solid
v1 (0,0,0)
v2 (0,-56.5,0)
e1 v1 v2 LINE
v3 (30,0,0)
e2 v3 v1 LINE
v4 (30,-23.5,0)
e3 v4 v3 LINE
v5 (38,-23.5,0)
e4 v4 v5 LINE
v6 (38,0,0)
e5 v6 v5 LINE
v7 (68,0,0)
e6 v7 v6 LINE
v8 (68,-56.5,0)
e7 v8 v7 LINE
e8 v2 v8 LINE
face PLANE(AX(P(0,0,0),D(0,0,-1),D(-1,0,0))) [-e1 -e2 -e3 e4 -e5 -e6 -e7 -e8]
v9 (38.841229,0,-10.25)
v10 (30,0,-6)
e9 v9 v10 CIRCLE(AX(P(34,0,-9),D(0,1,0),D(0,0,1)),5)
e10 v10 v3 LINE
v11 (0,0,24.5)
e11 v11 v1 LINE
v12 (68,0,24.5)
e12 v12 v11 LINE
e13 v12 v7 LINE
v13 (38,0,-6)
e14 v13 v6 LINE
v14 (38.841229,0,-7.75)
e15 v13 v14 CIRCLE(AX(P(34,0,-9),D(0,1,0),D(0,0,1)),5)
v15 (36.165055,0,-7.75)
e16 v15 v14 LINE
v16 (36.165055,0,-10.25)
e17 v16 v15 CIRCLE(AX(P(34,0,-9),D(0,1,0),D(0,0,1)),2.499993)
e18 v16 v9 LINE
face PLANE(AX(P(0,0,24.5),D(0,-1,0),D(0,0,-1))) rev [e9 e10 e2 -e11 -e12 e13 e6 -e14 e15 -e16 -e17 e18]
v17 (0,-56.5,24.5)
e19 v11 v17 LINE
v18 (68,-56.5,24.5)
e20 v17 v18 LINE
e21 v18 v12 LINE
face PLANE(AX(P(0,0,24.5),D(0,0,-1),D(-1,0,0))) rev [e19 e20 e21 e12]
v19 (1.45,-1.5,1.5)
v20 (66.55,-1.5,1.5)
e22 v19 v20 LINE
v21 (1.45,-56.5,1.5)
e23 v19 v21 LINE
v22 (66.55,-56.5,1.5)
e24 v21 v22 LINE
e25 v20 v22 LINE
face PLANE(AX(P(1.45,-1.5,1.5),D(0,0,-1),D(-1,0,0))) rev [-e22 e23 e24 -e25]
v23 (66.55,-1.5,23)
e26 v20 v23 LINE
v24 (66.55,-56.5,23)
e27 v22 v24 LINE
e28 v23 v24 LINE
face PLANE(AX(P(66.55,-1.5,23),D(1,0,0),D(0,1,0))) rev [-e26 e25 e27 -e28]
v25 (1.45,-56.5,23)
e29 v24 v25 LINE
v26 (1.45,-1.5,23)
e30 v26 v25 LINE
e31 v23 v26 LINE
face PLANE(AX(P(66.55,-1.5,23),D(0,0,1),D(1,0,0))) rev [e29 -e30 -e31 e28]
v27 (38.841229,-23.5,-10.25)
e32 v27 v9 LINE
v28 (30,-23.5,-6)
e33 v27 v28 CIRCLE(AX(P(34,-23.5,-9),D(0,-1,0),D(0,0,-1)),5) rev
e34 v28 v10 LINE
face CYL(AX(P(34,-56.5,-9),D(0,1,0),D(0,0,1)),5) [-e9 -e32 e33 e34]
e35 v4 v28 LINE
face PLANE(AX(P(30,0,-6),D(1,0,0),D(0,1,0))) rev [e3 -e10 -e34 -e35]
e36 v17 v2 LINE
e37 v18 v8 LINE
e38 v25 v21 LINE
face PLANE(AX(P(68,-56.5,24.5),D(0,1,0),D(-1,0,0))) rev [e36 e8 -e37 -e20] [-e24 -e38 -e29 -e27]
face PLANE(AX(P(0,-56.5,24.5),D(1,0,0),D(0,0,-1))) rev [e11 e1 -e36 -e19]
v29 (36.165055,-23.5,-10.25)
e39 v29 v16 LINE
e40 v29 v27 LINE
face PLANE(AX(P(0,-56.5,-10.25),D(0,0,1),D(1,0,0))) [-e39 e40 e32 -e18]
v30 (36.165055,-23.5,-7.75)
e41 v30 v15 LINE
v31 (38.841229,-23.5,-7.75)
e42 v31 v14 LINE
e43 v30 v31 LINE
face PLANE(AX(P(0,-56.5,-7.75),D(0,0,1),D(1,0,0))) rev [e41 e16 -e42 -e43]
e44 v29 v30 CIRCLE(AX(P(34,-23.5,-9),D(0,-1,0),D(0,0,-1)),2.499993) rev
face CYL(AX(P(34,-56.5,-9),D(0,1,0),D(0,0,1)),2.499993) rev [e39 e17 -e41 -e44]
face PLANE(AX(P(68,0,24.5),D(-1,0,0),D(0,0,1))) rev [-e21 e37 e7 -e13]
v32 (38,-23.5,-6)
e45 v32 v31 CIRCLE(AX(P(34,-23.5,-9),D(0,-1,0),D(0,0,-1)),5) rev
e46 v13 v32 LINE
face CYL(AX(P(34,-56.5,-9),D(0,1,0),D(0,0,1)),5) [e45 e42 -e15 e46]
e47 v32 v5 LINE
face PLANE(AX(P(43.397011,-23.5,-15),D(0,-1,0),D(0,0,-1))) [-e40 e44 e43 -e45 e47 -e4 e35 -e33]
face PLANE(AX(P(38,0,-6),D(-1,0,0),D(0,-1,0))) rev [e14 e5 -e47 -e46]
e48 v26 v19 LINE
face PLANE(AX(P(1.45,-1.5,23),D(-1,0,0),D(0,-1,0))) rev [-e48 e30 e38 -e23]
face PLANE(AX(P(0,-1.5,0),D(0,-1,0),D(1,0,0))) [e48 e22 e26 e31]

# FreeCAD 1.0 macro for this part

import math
import FreeCAD as App
import Part
import Sketcher

doc = App.newDocument("Part")
body = doc.addObject("PartDesign::Body", "Body")

# Sketch on XY plane
sketch1 = doc.addObject("Sketcher::SketchObject", "Sketch")
body.addObject(sketch1)
sketch1.AttachmentSupport = (doc.XY_Plane, [""])
sketch1.MapMode = "FlatFace"
sketch1.addGeometry(Part.LineSegment(App.Vector(0, 0, 0), App.Vector(0, -56.5, 0)), False)
sketch1.addGeometry(Part.LineSegment(App.Vector(0, -56.5, 0), App.Vector(68, -56.5, 0)), False)
sketch1.addGeometry(Part.LineSegment(App.Vector(68, -56.5, 0), App.Vector(68, 0, 0)), False)
sketch1.addGeometry(Part.LineSegment(App.Vector(68, 0, 0), App.Vector(0, 0, 0)), False)
sketch1.addConstraint(Sketcher.Constraint("Coincident", 0, 2, 1, 1))
sketch1.addConstraint(Sketcher.Constraint("Coincident", 1, 2, 2, 1))
sketch1.addConstraint(Sketcher.Constraint("Coincident", 2, 2, 3, 1))
sketch1.addConstraint(Sketcher.Constraint("Coincident", 3, 2, 0, 1))
sketch1.addConstraint(Sketcher.Constraint("Vertical", 0))
sketch1.addConstraint(Sketcher.Constraint("Horizontal", 1))
sketch1.addConstraint(Sketcher.Constraint("Vertical", 2))
sketch1.addConstraint(Sketcher.Constraint("Horizontal", 3))
sketch1.addConstraint(Sketcher.Constraint("Coincident", 3, 2, -1, 1))
sketch1.addConstraint(Sketcher.Constraint("DistanceX", 1, 1, 1, 2, 68.0))
sketch1.addConstraint(Sketcher.Constraint("DistanceY", 0, 2, 0, 1, 56.5))
pad1 = doc.addObject("PartDesign::Pad", "Pad")
body.addObject(pad1)
pad1.Profile = sketch1
pad1.Length = 24.5

# Sketch on XZ plane
sketch2 = doc.addObject("Sketcher::SketchObject", "Sketch001")
body.addObject(sketch2)
sketch2.AttachmentSupport = (doc.XZ_Plane, [""])
sketch2.MapMode = "FlatFace"
sketch2.AttachmentOffset = App.Placement(App.Vector(0, 0, 56.5), App.Rotation())
sketch2.addGeometry(Part.LineSegment(App.Vector(1.45, 23, 0), App.Vector(1.45, 1.5, 0)), False)
sketch2.addGeometry(Part.LineSegment(App.Vector(1.45, 1.5, 0), App.Vector(66.55, 1.5, 0)), False)
sketch2.addGeometry(Part.LineSegment(App.Vector(66.55, 1.5, 0), App.Vector(66.55, 23, 0)), False)
sketch2.addGeometry(Part.LineSegment(App.Vector(66.55, 23, 0), App.Vector(1.45, 23, 0)), False)
sketch2.addConstraint(Sketcher.Constraint("Coincident", 0, 2, 1, 1))
sketch2.addConstraint(Sketcher.Constraint("Coincident", 1, 2, 2, 1))
sketch2.addConstraint(Sketcher.Constraint("Coincident", 2, 2, 3, 1))
sketch2.addConstraint(Sketcher.Constraint("Coincident", 3, 2, 0, 1))
sketch2.addConstraint(Sketcher.Constraint("Vertical", 0))
sketch2.addConstraint(Sketcher.Constraint("Horizontal", 1))
sketch2.addConstraint(Sketcher.Constraint("Vertical", 2))
sketch2.addConstraint(Sketcher.Constraint("Horizontal", 3))
sketch2.addConstraint(Sketcher.Constraint("DistanceX", 1, 1, 1, 2, 65.1))
sketch2.addConstraint(Sketcher.Constraint("DistanceY", 0, 2, 0, 1, 21.5))
sketch2.addConstraint(Sketcher.Constraint("DistanceY", -1, 1, 2, 2, 23.0))
sketch2.addConstraint(Sketcher.Constraint("DistanceX", -1, 1, 0, 2, 1.45))
pocket1 = doc.addObject("PartDesign::Pocket", "Pocket")
body.addObject(pocket1)
pocket1.Profile = sketch2
pocket1.Length = 55

# Sketch on XY plane
sketch3 = doc.addObject("Sketcher::SketchObject", "Sketch002")
body.addObject(sketch3)
sketch3.AttachmentSupport = (doc.XY_Plane, [""])
sketch3.MapMode = "FlatFace"
sketch3.addGeometry(Part.LineSegment(App.Vector(38, 0, 0), App.Vector(38, -56.5, 0)), False)
sketch3.addGeometry(Part.LineSegment(App.Vector(38, -56.5, 0), App.Vector(30, -56.5, 0)), False)
sketch3.addGeometry(Part.LineSegment(App.Vector(30, -56.5, 0), App.Vector(30, 0, 0)), False)
sketch3.addGeometry(Part.LineSegment(App.Vector(30, 0, 0), App.Vector(38, 0, 0)), False)
sketch3.addConstraint(Sketcher.Constraint("Coincident", 0, 2, 1, 1))
sketch3.addConstraint(Sketcher.Constraint("Coincident", 1, 2, 2, 1))
sketch3.addConstraint(Sketcher.Constraint("Coincident", 2, 2, 3, 1))
sketch3.addConstraint(Sketcher.Constraint("Coincident", 3, 2, 0, 1))
sketch3.addConstraint(Sketcher.Constraint("Vertical", 0))
sketch3.addConstraint(Sketcher.Constraint("Horizontal", 1))
sketch3.addConstraint(Sketcher.Constraint("Vertical", 2))
sketch3.addConstraint(Sketcher.Constraint("Horizontal", 3))
sketch3.addConstraint(Sketcher.Constraint("PointOnObject", 2, 2, -1))
sketch3.addConstraint(Sketcher.Constraint("DistanceX", 1, 2, 1, 1, 8.0))
sketch3.addConstraint(Sketcher.Constraint("DistanceY", 0, 2, 0, 1, 56.5))
sketch3.addConstraint(Sketcher.Constraint("DistanceX", -1, 1, 0, 2, 38.0))
pad2 = doc.addObject("PartDesign::Pad", "Pad001")
body.addObject(pad2)
pad2.Profile = sketch3
pad2.Length = 6
pad2.Reversed = True

# Sketch on XZ plane
sketch4 = doc.addObject("Sketcher::SketchObject", "Sketch003")
body.addObject(sketch4)
sketch4.AttachmentSupport = (doc.XZ_Plane, [""])
sketch4.MapMode = "FlatFace"
sketch4.addGeometry(Part.ArcOfCircle(Part.Circle(App.Vector(34, -9, 0), App.Vector(0, 0, 1), 5), math.radians(14.477512), math.radians(36.869898)), False)
sketch4.addGeometry(Part.LineSegment(App.Vector(38.841229, -7.75, 0), App.Vector(36.165055, -7.75, 0)), False)
sketch4.addGeometry(Part.ArcOfCircle(Part.Circle(App.Vector(34, -9, 0), App.Vector(0, 0, 1), 2.499993), math.radians(30.000095), math.radians(329.999905)), False)
sketch4.addGeometry(Part.LineSegment(App.Vector(36.165055, -10.25, 0), App.Vector(38.841229, -10.25, 0)), False)
sketch4.addGeometry(Part.ArcOfCircle(Part.Circle(App.Vector(34, -9, 0), App.Vector(0, 0, 1), 5), math.radians(143.130102), math.radians(345.522488)), False)
sketch4.addGeometry(Part.LineSegment(App.Vector(30, -6, 0), App.Vector(38, -6, 0)), False)
sketch4.addConstraint(Sketcher.Constraint("Coincident", 0, 1, 1, 1))
sketch4.addConstraint(Sketcher.Constraint("Coincident", 1, 2, 2, 1))
sketch4.addConstraint(Sketcher.Constraint("Coincident", 2, 2, 3, 1))
sketch4.addConstraint(Sketcher.Constraint("Coincident", 3, 2, 4, 2))
sketch4.addConstraint(Sketcher.Constraint("Coincident", 4, 1, 5, 1))
sketch4.addConstraint(Sketcher.Constraint("Coincident", 5, 2, 0, 2))
sketch4.addConstraint(Sketcher.Constraint("Horizontal", 1))
sketch4.addConstraint(Sketcher.Constraint("Horizontal", 3))
sketch4.addConstraint(Sketcher.Constraint("Horizontal", 5))
sketch4.addConstraint(Sketcher.Constraint("Coincident", 2, 3, 0, 3))
sketch4.addConstraint(Sketcher.Constraint("Coincident", 4, 3, 0, 3))
sketch4.addConstraint(Sketcher.Constraint("Equal", 0, 4))
sketch4.addConstraint(Sketcher.Constraint("Vertical", 1, 2, 2, 2))
sketch4.addConstraint(Sketcher.Constraint("Radius", 0, 5.0))
sketch4.addConstraint(Sketcher.Constraint("DistanceX", 5, 1, 5, 2, 8.0))
sketch4.addConstraint(Sketcher.Constraint("DistanceX", -1, 1, 0, 3, 34.0))
sketch4.addConstraint(Sketcher.Constraint("DistanceY", 0, 3, -1, 1, 9.0))
sketch4.addConstraint(Sketcher.Constraint("DistanceY", 2, 2, 1, 2, 2.5))
sketch4.addConstraint(Sketcher.Constraint("Radius", 2, 2.499993))
pad3 = doc.addObject("PartDesign::Pad", "Pad002")
body.addObject(pad3)
pad3.Profile = sketch4
pad3.Length = 56.5

# Sketch on XY plane
sketch5 = doc.addObject("Sketcher::SketchObject", "Sketch004")
body.addObject(sketch5)
sketch5.AttachmentSupport = (doc.XY_Plane, [""])
sketch5.MapMode = "FlatFace"
sketch5.addGeometry(Part.LineSegment(App.Vector(43.397011, -23.5, 0), App.Vector(43.397011, -56.5, 0)), False)
sketch5.addGeometry(Part.LineSegment(App.Vector(43.397011, -56.5, 0), App.Vector(24.397011, -56.5, 0)), False)
sketch5.addGeometry(Part.LineSegment(App.Vector(24.397011, -56.5, 0), App.Vector(24.397011, -23.5, 0)), False)
sketch5.addGeometry(Part.LineSegment(App.Vector(24.397011, -23.5, 0), App.Vector(43.397011, -23.5, 0)), False)
sketch5.addConstraint(Sketcher.Constraint("Coincident", 0, 2, 1, 1))
sketch5.addConstraint(Sketcher.Constraint("Coincident", 1, 2, 2, 1))
sketch5.addConstraint(Sketcher.Constraint("Coincident", 2, 2, 3, 1))
sketch5.addConstraint(Sketcher.Constraint("Coincident", 3, 2, 0, 1))
sketch5.addConstraint(Sketcher.Constraint("Vertical", 0))
sketch5.addConstraint(Sketcher.Constraint("Horizontal", 1))
sketch5.addConstraint(Sketcher.Constraint("Vertical", 2))
sketch5.addConstraint(Sketcher.Constraint("Horizontal", 3))
sketch5.addConstraint(Sketcher.Constraint("DistanceX", 1, 2, 1, 1, 19.0))
sketch5.addConstraint(Sketcher.Constraint("DistanceY", 0, 2, 0, 1, 33.0))
sketch5.addConstraint(Sketcher.Constraint("DistanceY", 0, 2, -1, 1, 56.5))
sketch5.addConstraint(Sketcher.Constraint("DistanceX", -1, 1, 0, 2, 43.397011))
pocket2 = doc.addObject("PartDesign::Pocket", "Pocket001")
body.addObject(pocket2)
pocket2.Profile = sketch5
pocket2.Length = 15

doc.recompute()
